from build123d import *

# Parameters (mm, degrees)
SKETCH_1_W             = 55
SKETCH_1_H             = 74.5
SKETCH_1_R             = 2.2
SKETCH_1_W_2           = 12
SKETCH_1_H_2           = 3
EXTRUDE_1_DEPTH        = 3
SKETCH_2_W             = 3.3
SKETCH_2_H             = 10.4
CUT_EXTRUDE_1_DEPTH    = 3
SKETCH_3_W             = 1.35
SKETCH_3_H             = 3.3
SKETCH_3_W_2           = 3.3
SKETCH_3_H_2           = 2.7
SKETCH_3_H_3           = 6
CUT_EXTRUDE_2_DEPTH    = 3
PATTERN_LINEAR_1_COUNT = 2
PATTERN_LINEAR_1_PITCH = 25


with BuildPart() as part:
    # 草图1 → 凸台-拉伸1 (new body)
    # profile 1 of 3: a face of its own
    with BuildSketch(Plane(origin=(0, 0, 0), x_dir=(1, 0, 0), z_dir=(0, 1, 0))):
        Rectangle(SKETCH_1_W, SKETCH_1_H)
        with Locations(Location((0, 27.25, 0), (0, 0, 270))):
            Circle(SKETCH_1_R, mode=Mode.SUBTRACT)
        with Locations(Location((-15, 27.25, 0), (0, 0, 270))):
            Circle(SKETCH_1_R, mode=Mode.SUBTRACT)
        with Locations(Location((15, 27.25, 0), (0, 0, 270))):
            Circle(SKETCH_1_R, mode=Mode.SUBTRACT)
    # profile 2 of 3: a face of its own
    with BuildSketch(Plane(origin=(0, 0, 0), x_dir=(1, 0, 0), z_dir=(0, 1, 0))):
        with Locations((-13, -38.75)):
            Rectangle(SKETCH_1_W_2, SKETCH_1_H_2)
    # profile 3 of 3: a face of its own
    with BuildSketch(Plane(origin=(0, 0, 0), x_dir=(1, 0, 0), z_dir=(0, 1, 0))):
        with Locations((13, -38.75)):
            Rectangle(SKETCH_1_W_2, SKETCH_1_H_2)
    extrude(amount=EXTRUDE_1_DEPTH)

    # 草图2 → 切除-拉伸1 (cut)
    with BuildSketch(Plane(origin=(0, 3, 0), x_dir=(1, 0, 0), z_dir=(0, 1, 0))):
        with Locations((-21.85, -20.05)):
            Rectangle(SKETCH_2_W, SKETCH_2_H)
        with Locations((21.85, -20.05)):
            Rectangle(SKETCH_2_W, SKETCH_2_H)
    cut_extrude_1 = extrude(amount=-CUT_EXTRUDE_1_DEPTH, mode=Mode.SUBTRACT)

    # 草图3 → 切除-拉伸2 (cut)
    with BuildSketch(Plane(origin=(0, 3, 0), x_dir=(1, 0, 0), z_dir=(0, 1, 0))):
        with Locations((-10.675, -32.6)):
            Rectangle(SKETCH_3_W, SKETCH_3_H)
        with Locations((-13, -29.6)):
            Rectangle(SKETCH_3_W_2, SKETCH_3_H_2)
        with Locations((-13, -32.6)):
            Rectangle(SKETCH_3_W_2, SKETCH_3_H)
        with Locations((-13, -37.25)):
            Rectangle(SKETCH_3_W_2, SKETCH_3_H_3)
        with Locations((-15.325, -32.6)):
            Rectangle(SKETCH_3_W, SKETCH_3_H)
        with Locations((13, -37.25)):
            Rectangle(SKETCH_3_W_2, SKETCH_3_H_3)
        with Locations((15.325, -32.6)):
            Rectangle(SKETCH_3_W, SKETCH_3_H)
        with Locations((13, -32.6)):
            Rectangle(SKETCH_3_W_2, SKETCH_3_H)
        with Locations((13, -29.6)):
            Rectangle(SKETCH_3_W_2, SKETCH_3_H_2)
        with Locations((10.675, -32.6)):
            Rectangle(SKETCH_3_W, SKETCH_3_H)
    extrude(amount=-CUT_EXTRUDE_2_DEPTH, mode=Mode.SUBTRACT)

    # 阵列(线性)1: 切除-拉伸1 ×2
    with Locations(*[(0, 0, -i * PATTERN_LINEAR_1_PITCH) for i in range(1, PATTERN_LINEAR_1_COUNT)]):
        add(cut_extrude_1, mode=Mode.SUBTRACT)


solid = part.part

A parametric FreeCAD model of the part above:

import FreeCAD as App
import Part
import Sketcher

V = App.Vector
Q = App.Units.Quantity

doc = App.newDocument("Part")
body = doc.addObject("PartDesign::Body", "Body")

sketch1 = body.newObject("Sketcher::SketchObject", "Sketch")
sketch1.AttachmentSupport = (doc.getObject("XZ_Plane"), [""])
sketch1.MapMode = "FlatFace"
sketch1.addGeometry([
    Part.LineSegment(V(-27.5, -37.25, 0), V(-27.5, 37.25, 0)),
    Part.LineSegment(V(-27.5, 37.25, 0), V(-19, 37.25, 0)),
    Part.LineSegment(V(-19, 37.25, 0), V(-19, 40.25, 0)),
    Part.LineSegment(V(-19, 40.25, 0), V(-7, 40.25, 0)),
    Part.LineSegment(V(-7, 40.25, 0), V(-7, 37.25, 0)),
    Part.LineSegment(V(-7, 37.25, 0), V(7, 37.25, 0)),
    Part.LineSegment(V(7, 37.25, 0), V(7, 40.25, 0)),
    Part.LineSegment(V(7, 40.25, 0), V(19, 40.25, 0)),
    Part.LineSegment(V(19, 40.25, 0), V(19, 37.25, 0)),
    Part.LineSegment(V(19, 37.25, 0), V(27.5, 37.25, 0)),
    Part.LineSegment(V(27.5, 37.25, 0), V(27.5, -37.25, 0)),
    Part.LineSegment(V(27.5, -37.25, 0), V(-27.5, -37.25, 0)),
    Part.Circle(V(-15, -27.25, 0), V(0, 0, 1), 2.2),
    Part.Circle(V(0, -27.25, 0), V(0, 0, 1), 2.2),
    Part.Circle(V(15, -27.25, 0), V(0, 0, 1), 2.2),
], False)
sketch1.addConstraint([
    Sketcher.Constraint("Coincident", 0, 2, 1, 1),
    Sketcher.Constraint("Coincident", 1, 2, 2, 1),
    Sketcher.Constraint("Coincident", 2, 2, 3, 1),
    Sketcher.Constraint("Coincident", 3, 2, 4, 1),
    Sketcher.Constraint("Coincident", 4, 2, 5, 1),
    Sketcher.Constraint("Coincident", 5, 2, 6, 1),
    Sketcher.Constraint("Coincident", 6, 2, 7, 1),
    Sketcher.Constraint("Coincident", 7, 2, 8, 1),
    Sketcher.Constraint("Coincident", 8, 2, 9, 1),
    Sketcher.Constraint("Coincident", 9, 2, 10, 1),
    Sketcher.Constraint("Coincident", 10, 2, 11, 1),
    Sketcher.Constraint("Coincident", 11, 2, 0, 1),
    Sketcher.Constraint("Vertical", 0),
    Sketcher.Constraint("Horizontal", 1),
    Sketcher.Constraint("Vertical", 2),
    Sketcher.Constraint("Horizontal", 3),
    Sketcher.Constraint("Vertical", 4),
    Sketcher.Constraint("Horizontal", 5),
    Sketcher.Constraint("Vertical", 6),
    Sketcher.Constraint("Horizontal", 7),
    Sketcher.Constraint("Vertical", 8),
    Sketcher.Constraint("Horizontal", 9),
    Sketcher.Constraint("Vertical", 10),
    Sketcher.Constraint("Horizontal", 11),
    Sketcher.Constraint("Equal", 12, 13),
    Sketcher.Constraint("Equal", 13, 14),
    Sketcher.Constraint("Symmetric", 0, 2, 10, 2, -1, 1),
    Sketcher.Constraint("Symmetric", 12, 3, 14, 3, -2),
    Sketcher.Constraint("Symmetric", 3, 2, 6, 2, -2),
    Sketcher.Constraint("Symmetric", 1, 2, 8, 2, -2),
    Sketcher.Constraint("PointOnObject", 13, 3, -2),
    Sketcher.Constraint("Horizontal", 12, 3, 13, 3),
    Sketcher.Constraint("Horizontal", 1, 2, 4, 2),
    Sketcher.Constraint("Diameter", 12, Q("4.4 mm")),
    Sketcher.Constraint("DistanceX", 3, 1, 3, 2, Q("12 mm")),
    Sketcher.Constraint("DistanceX", 5, 1, 5, 2, Q("14 mm")),
    Sketcher.Constraint("DistanceX", 11, 2, 11, 1, Q("55 mm")),
    Sketcher.Constraint("DistanceY", 2, 1, 2, 2, Q("3 mm")),
    Sketcher.Constraint("DistanceY", 0, 1, 0, 2, Q("74.5 mm")),
    Sketcher.Constraint("DistanceX", 12, 3, -1, 1, Q("15 mm")),
    Sketcher.Constraint("DistanceY", 10, 2, 14, 3, Q("10 mm")),
])
pad1 = body.newObject("PartDesign::Pad", "Pad")
pad1.Profile = sketch1
pad1.Length = 3
pad1.Reversed = True

sketch2 = body.newObject("Sketcher::SketchObject", "Sketch001")
sketch2.AttachmentSupport = (doc.getObject("XZ_Plane"), [""])
sketch2.MapMode = "FlatFace"
sketch2.AttachmentOffset = App.Placement(V(0, 0, -3), App.Rotation())
sketch2.addGeometry([
    Part.LineSegment(V(-23.5, 14.85, 0), V(-23.5, 25.25, 0)),
    Part.LineSegment(V(-23.5, 25.25, 0), V(-20.2, 25.25, 0)),
    Part.LineSegment(V(-20.2, 25.25, 0), V(-20.2, 14.85, 0)),
    Part.LineSegment(V(-20.2, 14.85, 0), V(-23.5, 14.85, 0)),
    Part.LineSegment(V(20.2, 14.85, 0), V(20.2, 25.25, 0)),
    Part.LineSegment(V(20.2, 25.25, 0), V(23.5, 25.25, 0)),
    Part.LineSegment(V(23.5, 25.25, 0), V(23.5, 14.85, 0)),
    Part.LineSegment(V(23.5, 14.85, 0), V(20.2, 14.85, 0)),
], False)
sketch2.addConstraint([
    Sketcher.Constraint("Coincident", 0, 2, 1, 1),
    Sketcher.Constraint("Coincident", 1, 2, 2, 1),
    Sketcher.Constraint("Coincident", 2, 2, 3, 1),
    Sketcher.Constraint("Coincident", 3, 2, 0, 1),
    Sketcher.Constraint("Coincident", 4, 2, 5, 1),
    Sketcher.Constraint("Coincident", 5, 2, 6, 1),
    Sketcher.Constraint("Coincident", 6, 2, 7, 1),
    Sketcher.Constraint("Coincident", 7, 2, 4, 1),
    Sketcher.Constraint("Vertical", 0),
    Sketcher.Constraint("Horizontal", 1),
    Sketcher.Constraint("Vertical", 2),
    Sketcher.Constraint("Horizontal", 3),
    Sketcher.Constraint("Vertical", 4),
    Sketcher.Constraint("Horizontal", 5),
    Sketcher.Constraint("Vertical", 6),
    Sketcher.Constraint("Horizontal", 7),
    Sketcher.Constraint("Symmetric", 1, 2, 4, 2, -2),
    Sketcher.Constraint("Symmetric", 3, 2, 6, 2, -2),
    Sketcher.Constraint("DistanceX", 1, 1, 1, 2, Q("3.3 mm")),
    Sketcher.Constraint("DistanceY", 0, 1, 0, 2, Q("10.4 mm")),
    Sketcher.Constraint("DistanceX", 0, 2, 5, 2, Q("47 mm")),
    Sketcher.Constraint("DistanceY", -1, 1, 0, 2, Q("25.25 mm")),
])
pocket1 = body.newObject("PartDesign::Pocket", "Pocket")
pocket1.Profile = sketch2
pocket1.Length = 3
pocket1.Reversed = True

sketch3 = body.newObject("Sketcher::SketchObject", "Sketch002")
sketch3.AttachmentSupport = (doc.getObject("XZ_Plane"), [""])
sketch3.MapMode = "FlatFace"
sketch3.AttachmentOffset = App.Placement(V(0, 0, -3), App.Rotation())
sketch3.addGeometry([
    Part.LineSegment(V(-10, 34.25, 0), V(-10, 30.95, 0)),
    Part.LineSegment(V(-10, 30.95, 0), V(-11.35, 30.95, 0)),
    Part.LineSegment(V(-11.35, 30.95, 0), V(-11.35, 28.25, 0)),
    Part.LineSegment(V(-11.35, 28.25, 0), V(-14.65, 28.25, 0)),
    Part.LineSegment(V(-14.65, 28.25, 0), V(-14.65, 30.95, 0)),
    Part.LineSegment(V(-14.65, 30.95, 0), V(-16, 30.95, 0)),
    Part.LineSegment(V(-16, 30.95, 0), V(-16, 34.25, 0)),
    Part.LineSegment(V(-16, 34.25, 0), V(-14.65, 34.25, 0)),
    Part.LineSegment(V(-14.65, 34.25, 0), V(-14.65, 40.25, 0)),
    Part.LineSegment(V(-14.65, 40.25, 0), V(-11.35, 40.25, 0)),
    Part.LineSegment(V(-11.35, 40.25, 0), V(-11.35, 34.25, 0)),
    Part.LineSegment(V(-11.35, 34.25, 0), V(-10, 34.25, 0)),
    Part.LineSegment(V(11.35, 40.25, 0), V(14.65, 40.25, 0)),
    Part.LineSegment(V(14.65, 40.25, 0), V(14.65, 34.25, 0)),
    Part.LineSegment(V(14.65, 34.25, 0), V(16, 34.25, 0)),
    Part.LineSegment(V(16, 34.25, 0), V(16, 30.95, 0)),
    Part.LineSegment(V(16, 30.95, 0), V(14.65, 30.95, 0)),
    Part.LineSegment(V(14.65, 30.95, 0), V(14.65, 28.25, 0)),
    Part.LineSegment(V(14.65, 28.25, 0), V(11.35, 28.25, 0)),
    Part.LineSegment(V(11.35, 28.25, 0), V(11.35, 30.95, 0)),
    Part.LineSegment(V(11.35, 30.95, 0), V(10, 30.95, 0)),
    Part.LineSegment(V(10, 30.95, 0), V(10, 34.25, 0)),
    Part.LineSegment(V(10, 34.25, 0), V(11.35, 34.25, 0)),
    Part.LineSegment(V(11.35, 34.25, 0), V(11.35, 40.25, 0)),
], False)
sketch3.addConstraint([
    Sketcher.Constraint("Coincident", 0, 2, 1, 1),
    Sketcher.Constraint("Coincident", 1, 2, 2, 1),
    Sketcher.Constraint("Coincident", 2, 2, 3, 1),
    Sketcher.Constraint("Coincident", 3, 2, 4, 1),
    Sketcher.Constraint("Coincident", 4, 2, 5, 1),
    Sketcher.Constraint("Coincident", 5, 2, 6, 1),
    Sketcher.Constraint("Coincident", 6, 2, 7, 1),
    Sketcher.Constraint("Coincident", 7, 2, 8, 1),
    Sketcher.Constraint("Coincident", 8, 2, 9, 1),
    Sketcher.Constraint("Coincident", 9, 2, 10, 1),
    Sketcher.Constraint("Coincident", 10, 2, 11, 1),
    Sketcher.Constraint("Coincident", 11, 2, 0, 1),
    Sketcher.Constraint("Coincident", 12, 2, 13, 1),
    Sketcher.Constraint("Coincident", 13, 2, 14, 1),
    Sketcher.Constraint("Coincident", 14, 2, 15, 1),
    Sketcher.Constraint("Coincident", 15, 2, 16, 1),
    Sketcher.Constraint("Coincident", 16, 2, 17, 1),
    Sketcher.Constraint("Coincident", 17, 2, 18, 1),
    Sketcher.Constraint("Coincident", 18, 2, 19, 1),
    Sketcher.Constraint("Coincident", 19, 2, 20, 1),
    Sketcher.Constraint("Coincident", 20, 2, 21, 1),
    Sketcher.Constraint("Coincident", 21, 2, 22, 1),
    Sketcher.Constraint("Coincident", 22, 2, 23, 1),
    Sketcher.Constraint("Coincident", 23, 2, 12, 1),
    Sketcher.Constraint("Vertical", 0),
    Sketcher.Constraint("Horizontal", 1),
    Sketcher.Constraint("Vertical", 2),
    Sketcher.Constraint("Horizontal", 3),
    Sketcher.Constraint("Vertical", 4),
    Sketcher.Constraint("Horizontal", 5),
    Sketcher.Constraint("Vertical", 6),
    Sketcher.Constraint("Horizontal", 7),
    Sketcher.Constraint("Vertical", 8),
    Sketcher.Constraint("Horizontal", 9),
    Sketcher.Constraint("Vertical", 10),
    Sketcher.Constraint("Horizontal", 11),
    Sketcher.Constraint("Horizontal", 12),
    Sketcher.Constraint("Vertical", 13),
    Sketcher.Constraint("Horizontal", 14),
    Sketcher.Constraint("Vertical", 15),
    Sketcher.Constraint("Horizontal", 16),
    Sketcher.Constraint("Vertical", 17),
    Sketcher.Constraint("Horizontal", 18),
    Sketcher.Constraint("Vertical", 19),
    Sketcher.Constraint("Horizontal", 20),
    Sketcher.Constraint("Vertical", 21),
    Sketcher.Constraint("Horizontal", 22),
    Sketcher.Constraint("Vertical", 23),
    Sketcher.Constraint("Symmetric", 8, 2, 12, 2, -2),
    Sketcher.Constraint("Symmetric", 6, 2, 14, 2, -2),
    Sketcher.Constraint("Symmetric", 4, 2, 16, 2, -2),
    Sketcher.Constraint("Symmetric", 2, 2, 18, 2, -2),
    Sketcher.Constraint("Symmetric", 0, 2, 20, 2, -2),
    Sketcher.Constraint("Symmetric", 10, 2, 22, 2, -2),
    Sketcher.Constraint("Horizontal", 1, 2, 4, 2),
    Sketcher.Constraint("Horizontal", 7, 2, 10, 2),
    Sketcher.Constraint("Vertical", 4, 2, 7, 2),
    Sketcher.Constraint("Vertical", 2, 2, 9, 2),
    Sketcher.Constraint("Equal", 1, 5),
    Sketcher.Constraint("Equal", 18, 0),
    Sketcher.Constraint("DistanceY", 8, 1, 8, 2, Q("6 mm")),
    Sketcher.Constraint("DistanceX", 3, 2, 3, 1, Q("3.3 mm")),
    Sketcher.Constraint("DistanceY", 2, 2, 2, 1, Q("2.7 mm")),
    Sketcher.Constraint("DistanceX", 0, 2, -1, 1, Q("10 mm")),
    Sketcher.Constraint("DistanceX", 5, 2, -1, 1, Q("16 mm")),
    Sketcher.Constraint("DistanceY", -1, 1, 0, 2, Q("30.95 mm")),
])
pocket2 = body.newObject("PartDesign::Pocket", "Pocket001")
pocket2.Profile = sketch3
pocket2.Length = 3
pocket2.Reversed = True
doc.recompute()

linearpattern = body.newObject("PartDesign::LinearPattern", "LinearPattern")
linearpattern.Originals = [pocket1]
linearpattern.Direction = (doc.getObject("Z_Axis"), [""])
linearpattern.Mode = "offset"
linearpattern.Offset = 25
linearpattern.Occurrences = 2
linearpattern.Reversed = True
body.Tip = linearpattern

doc.recompute()
